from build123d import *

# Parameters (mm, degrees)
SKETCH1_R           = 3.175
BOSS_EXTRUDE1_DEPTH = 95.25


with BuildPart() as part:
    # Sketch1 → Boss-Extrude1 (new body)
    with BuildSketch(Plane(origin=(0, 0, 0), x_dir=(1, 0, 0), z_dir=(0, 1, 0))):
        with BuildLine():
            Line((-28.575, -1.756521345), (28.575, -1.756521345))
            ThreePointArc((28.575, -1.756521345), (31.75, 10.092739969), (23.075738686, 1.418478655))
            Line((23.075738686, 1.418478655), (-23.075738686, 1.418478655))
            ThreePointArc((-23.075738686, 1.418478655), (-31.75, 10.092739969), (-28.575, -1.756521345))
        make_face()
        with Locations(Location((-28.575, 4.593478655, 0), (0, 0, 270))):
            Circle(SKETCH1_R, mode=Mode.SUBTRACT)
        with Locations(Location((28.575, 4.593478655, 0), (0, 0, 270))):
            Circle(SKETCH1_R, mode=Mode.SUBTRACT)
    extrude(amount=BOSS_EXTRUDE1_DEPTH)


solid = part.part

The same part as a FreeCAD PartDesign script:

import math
import FreeCAD as App
import Part
import Sketcher

V = App.Vector
Q = App.Units.Quantity

doc = App.newDocument("Part")
body = doc.addObject("PartDesign::Body", "Body")

# Sketch on XZ plane
sketch1 = doc.addObject("Sketcher::SketchObject", "Sketch")
body.addObject(sketch1)
sketch1.AttachmentSupport = (doc.XZ_Plane, [""])
sketch1.MapMode = "FlatFace"
sketch1.addGeometry(Part.LineSegment(V(-28.575, 1.756521, 0), V(28.575, 1.756521, 0)), False)
sketch1.addGeometry(Part.ArcOfCircle(Part.Circle(V(28.575, -4.593479, 0), V(0, 0, 1), 6.35), math.radians(150), math.radians(450)), False)
sketch1.addGeometry(Part.LineSegment(V(23.075739, -1.418479, 0), V(-23.075739, -1.418479, 0)), False)
sketch1.addGeometry(Part.ArcOfCircle(Part.Circle(V(-28.575, -4.593479, 0), V(0, 0, 1), 6.35), math.radians(90), math.radians(390)), False)
sketch1.addGeometry(Part.Circle(V(-28.575, -4.593479, 0), V(0, 0, 1), 3.175), False)
sketch1.addGeometry(Part.Circle(V(28.575, -4.593479, 0), V(0, 0, 1), 3.175), False)
sketch1.addConstraint(Sketcher.Constraint("Tangent", 0, 2, 1, 2))
sketch1.addConstraint(Sketcher.Constraint("Coincident", 1, 1, 2, 1))
sketch1.addConstraint(Sketcher.Constraint("Coincident", 2, 2, 3, 2))
sketch1.addConstraint(Sketcher.Constraint("Tangent", 3, 1, 0, 1))
sketch1.addConstraint(Sketcher.Constraint("Horizontal", 0))
sketch1.addConstraint(Sketcher.Constraint("Horizontal", 2))
sketch1.addConstraint(Sketcher.Constraint("Coincident", 4, 3, 3, 3))
sketch1.addConstraint(Sketcher.Constraint("Coincident", 5, 3, 1, 3))
sketch1.addConstraint(Sketcher.Constraint("Equal", 1, 3))
sketch1.addConstraint(Sketcher.Constraint("Equal", 4, 5))
sketch1.addConstraint(Sketcher.Constraint("Diameter", 4, Q("0.25 in")))
sketch1.addConstraint(Sketcher.Constraint("Radius", 1, Q("0.25 in")))
sketch1.addConstraint(Sketcher.Constraint("DistanceX", 0, 1, 0, 2, Q("2.25 in")))
sketch1.addConstraint(Sketcher.Constraint("DistanceX", -1, 1, 1, 3, Q("1.125 in")))
sketch1.addConstraint(Sketcher.Constraint("DistanceY", 1, 1, 0, 2, Q("0.125 in")))
sketch1.addConstraint(Sketcher.Constraint("DistanceY", 1, 3, -1, 1, 4.593479))
pad1 = doc.addObject("PartDesign::Pad", "Pad")
body.addObject(pad1)
pad1.Profile = sketch1
pad1.Length = Q("3.75 in")
pad1.Reversed = True

doc.recompute()
